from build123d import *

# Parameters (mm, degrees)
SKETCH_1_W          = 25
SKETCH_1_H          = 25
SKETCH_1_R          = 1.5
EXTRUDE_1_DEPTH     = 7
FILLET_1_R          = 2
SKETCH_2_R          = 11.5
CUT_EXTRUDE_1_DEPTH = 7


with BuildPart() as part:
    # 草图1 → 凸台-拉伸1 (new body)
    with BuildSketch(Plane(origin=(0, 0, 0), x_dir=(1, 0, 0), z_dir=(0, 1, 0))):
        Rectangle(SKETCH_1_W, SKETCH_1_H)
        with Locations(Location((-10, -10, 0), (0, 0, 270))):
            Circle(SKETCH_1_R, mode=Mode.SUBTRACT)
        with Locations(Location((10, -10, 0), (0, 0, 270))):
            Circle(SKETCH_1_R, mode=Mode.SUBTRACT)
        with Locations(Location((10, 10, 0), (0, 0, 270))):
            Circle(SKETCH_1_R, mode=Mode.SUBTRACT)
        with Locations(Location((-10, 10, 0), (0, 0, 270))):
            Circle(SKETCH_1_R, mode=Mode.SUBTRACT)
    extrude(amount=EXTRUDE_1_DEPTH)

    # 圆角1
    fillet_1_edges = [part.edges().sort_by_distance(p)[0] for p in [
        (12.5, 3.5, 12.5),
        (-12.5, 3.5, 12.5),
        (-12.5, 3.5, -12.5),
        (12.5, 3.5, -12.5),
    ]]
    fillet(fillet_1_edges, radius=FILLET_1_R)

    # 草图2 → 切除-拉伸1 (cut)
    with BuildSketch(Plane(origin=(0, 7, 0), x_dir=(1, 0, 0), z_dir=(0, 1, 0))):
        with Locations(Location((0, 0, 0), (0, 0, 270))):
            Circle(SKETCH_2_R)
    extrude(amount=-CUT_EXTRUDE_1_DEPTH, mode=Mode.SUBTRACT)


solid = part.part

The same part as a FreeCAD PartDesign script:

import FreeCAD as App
import Part
import Sketcher
Q = App.Units.Quantity


def edges_at(feature, points):
    """Names of the edges that pass closest to the given points."""
    edges = feature.Shape.Edges
    near = lambda p: min(range(len(edges)), key=lambda i: edges[i].distToShape(Part.Vertex(*p))[0])
    return sorted({f"Edge{near(p) + 1}" for p in points})

doc = App.newDocument("Part")
body = doc.addObject("PartDesign::Body", "Body")

# Sketch on XZ plane
sketch1 = body.newObject("Sketcher::SketchObject", "Sketch")
sketch1.AttachmentSupport = (doc.getObject("XZ_Plane"), [""])
sketch1.MapMode = "FlatFace"
sketch1.addGeometry([
    Part.LineSegment(App.Vector(-12.5, -12.5, 0), App.Vector(-12.5, 12.5, 0)),  # 0
    Part.LineSegment(App.Vector(-12.5, 12.5, 0), App.Vector(12.5, 12.5, 0)),  # 1
    Part.LineSegment(App.Vector(12.5, 12.5, 0), App.Vector(12.5, -12.5, 0)),  # 2
    Part.LineSegment(App.Vector(12.5, -12.5, 0), App.Vector(-12.5, -12.5, 0)),  # 3
    Part.Circle(App.Vector(-10, 10, 0), App.Vector(0, 0, 1), 1.5),  # 4
    Part.Circle(App.Vector(10, 10, 0), App.Vector(0, 0, 1), 1.5),  # 5
    Part.Circle(App.Vector(-10, -10, 0), App.Vector(0, 0, 1), 1.5),  # 6
    Part.Circle(App.Vector(10, -10, 0), App.Vector(0, 0, 1), 1.5),  # 7
], False)
sketch1.addConstraint([
    Sketcher.Constraint("Coincident", 0, 2, 1, 1),
    Sketcher.Constraint("Coincident", 1, 2, 2, 1),
    Sketcher.Constraint("Coincident", 2, 2, 3, 1),
    Sketcher.Constraint("Coincident", 3, 2, 0, 1),
    Sketcher.Constraint("Vertical", 0),
    Sketcher.Constraint("Horizontal", 1),
    Sketcher.Constraint("Vertical", 2),
    Sketcher.Constraint("Horizontal", 3),
    Sketcher.Constraint("Equal", 4, 5),
    Sketcher.Constraint("Equal", 5, 6),
    Sketcher.Constraint("Equal", 6, 7),
    Sketcher.Constraint("Symmetric", 5, 3, 6, 3, -1, 1),
    Sketcher.Constraint("Symmetric", 4, 3, 7, 3, -1, 1),
    Sketcher.Constraint("Symmetric", 0, 2, 2, 2, -1, 1),
    Sketcher.Constraint("Symmetric", 4, 3, 5, 3, -2),
    Sketcher.Constraint("Equal", 3, 0),
    Sketcher.Constraint("Diameter", 4, Q("3 mm")),
    Sketcher.Constraint("DistanceX", 1, 1, 1, 2, Q("25 mm")),
    Sketcher.Constraint("DistanceX", 4, 3, -1, 1, Q("10 mm")),
    Sketcher.Constraint("DistanceY", -1, 1, 4, 3, Q("10 mm")),
])
pad1 = body.newObject("PartDesign::Pad", "Pad")
pad1.Profile = sketch1
pad1.Length = 7
pad1.Reversed = True
doc.recompute()

fillet = body.newObject("PartDesign::Fillet", "Fillet")
fillet.Base = (pad1, edges_at(pad1, [
    (12.5, 3.5, 12.5),
    (-12.5, 3.5, 12.5),
    (-12.5, 3.5, -12.5),
    (12.5, 3.5, -12.5),
]))
fillet.Radius = 2

# Sketch on XZ plane
sketch2 = body.newObject("Sketcher::SketchObject", "Sketch001")
sketch2.AttachmentSupport = (doc.getObject("XZ_Plane"), [""])
sketch2.MapMode = "FlatFace"
sketch2.AttachmentOffset = App.Placement(App.Vector(0, 0, -7), App.Rotation())
sketch2.addGeometry(Part.Circle(App.Vector(0, 0, 0), App.Vector(0, 0, 1), 12), False)
sketch2.addConstraint([
    Sketcher.Constraint("Coincident", 0, 3, -1, 1),
    Sketcher.Constraint("Diameter", 0, Q("23 mm")),
])
pocket1 = body.newObject("PartDesign::Pocket", "Pocket")
pocket1.Profile = sketch2
pocket1.Length = 7
pocket1.Reversed = True

doc.recompute()
